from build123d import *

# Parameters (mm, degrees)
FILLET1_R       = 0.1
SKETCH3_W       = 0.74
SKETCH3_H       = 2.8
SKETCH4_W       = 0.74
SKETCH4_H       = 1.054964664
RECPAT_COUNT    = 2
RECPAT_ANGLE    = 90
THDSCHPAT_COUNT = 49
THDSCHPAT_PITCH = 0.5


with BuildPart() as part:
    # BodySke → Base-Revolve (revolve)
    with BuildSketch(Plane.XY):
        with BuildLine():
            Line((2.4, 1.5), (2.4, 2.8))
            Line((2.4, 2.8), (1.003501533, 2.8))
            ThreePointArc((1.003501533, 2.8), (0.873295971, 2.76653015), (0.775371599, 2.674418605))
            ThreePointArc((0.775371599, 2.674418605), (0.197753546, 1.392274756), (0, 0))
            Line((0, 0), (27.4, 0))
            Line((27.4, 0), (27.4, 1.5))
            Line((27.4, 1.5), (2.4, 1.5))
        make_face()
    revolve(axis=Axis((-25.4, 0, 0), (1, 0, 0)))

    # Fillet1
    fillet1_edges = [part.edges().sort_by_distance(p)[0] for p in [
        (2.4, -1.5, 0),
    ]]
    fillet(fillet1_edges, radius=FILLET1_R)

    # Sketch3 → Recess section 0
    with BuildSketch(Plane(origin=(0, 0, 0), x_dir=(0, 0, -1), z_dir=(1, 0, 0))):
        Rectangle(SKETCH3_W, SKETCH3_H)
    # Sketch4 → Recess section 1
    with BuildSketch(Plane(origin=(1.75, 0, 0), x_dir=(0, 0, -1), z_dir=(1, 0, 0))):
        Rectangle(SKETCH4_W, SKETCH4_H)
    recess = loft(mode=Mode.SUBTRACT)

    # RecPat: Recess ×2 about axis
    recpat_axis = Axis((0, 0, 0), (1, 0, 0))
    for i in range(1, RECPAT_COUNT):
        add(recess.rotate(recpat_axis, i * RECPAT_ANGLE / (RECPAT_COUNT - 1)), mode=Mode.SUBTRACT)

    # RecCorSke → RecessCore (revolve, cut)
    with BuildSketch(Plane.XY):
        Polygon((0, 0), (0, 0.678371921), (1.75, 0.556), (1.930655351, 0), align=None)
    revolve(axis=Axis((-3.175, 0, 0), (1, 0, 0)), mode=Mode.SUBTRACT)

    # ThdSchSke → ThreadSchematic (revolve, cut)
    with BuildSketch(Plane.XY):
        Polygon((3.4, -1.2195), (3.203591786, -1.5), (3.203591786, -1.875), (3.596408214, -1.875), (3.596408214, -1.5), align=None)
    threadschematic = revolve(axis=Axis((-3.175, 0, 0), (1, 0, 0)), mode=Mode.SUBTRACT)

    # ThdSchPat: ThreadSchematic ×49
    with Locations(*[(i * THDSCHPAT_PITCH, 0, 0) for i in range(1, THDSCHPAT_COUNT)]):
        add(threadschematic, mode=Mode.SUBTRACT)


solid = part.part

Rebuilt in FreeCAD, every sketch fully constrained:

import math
import FreeCAD as App
import Part
import Sketcher
Q = App.Units.Quantity


def edges_at(feature, points):
    """Names of the edges that pass closest to the given points."""
    edges = feature.Shape.Edges
    near = lambda p: min(range(len(edges)), key=lambda i: edges[i].distToShape(Part.Vertex(*p))[0])
    return sorted({f"Edge{near(p) + 1}" for p in points})


def add_polygon(sketch, points):
    """Adds a closed chain of lines whose ends are joined by coincident constraints."""
    first, n = sketch.GeometryCount, len(points)
    for a, b in zip(points, points[1:] + points[:1]):
        sketch.addGeometry(Part.LineSegment(App.Vector(*a, 0), App.Vector(*b, 0)), False)
    for i in range(n):
        sketch.addConstraint(Sketcher.Constraint("Coincident", first + i, 2, first + (i + 1) % n, 1))

doc = App.newDocument("Part")
body = doc.addObject("PartDesign::Body", "Body")

# Sketch on XY plane
sketch1 = doc.addObject("Sketcher::SketchObject", "Sketch")
body.addObject(sketch1)
sketch1.AttachmentSupport = (doc.XY_Plane, [""])
sketch1.MapMode = "FlatFace"
sketch1.addGeometry([
    Part.LineSegment(App.Vector(2.4, 1.5, 0), App.Vector(2.4, 2.8, 0)),  # 0
    Part.LineSegment(App.Vector(2.4, 2.8, 0), App.Vector(1, 2.8, 0)),  # 1
    Part.ArcOfCircle(Part.Circle(App.Vector(1, 2.53, 0), App.Vector(0, 0, 1), 0.27), math.radians(90), math.radians(148)),  # 2
    Part.ArcOfCircle(Part.Circle(App.Vector(5, 0, 0), App.Vector(0, 0, 1), 5), math.radians(148), math.radians(180)),  # 3
    Part.LineSegment(App.Vector(0, 0, 0), App.Vector(27.4, 0, 0)),  # 4
    Part.LineSegment(App.Vector(27.4, 0, 0), App.Vector(27.4, 1.5, 0)),  # 5
    Part.LineSegment(App.Vector(27.4, 1.5, 0), App.Vector(2.4, 1.5, 0)),  # 6
], False)
sketch1.addConstraint([
    Sketcher.Constraint("Coincident", 0, 2, 1, 1),
    Sketcher.Constraint("Tangent", 1, 2, 2, 1),
    Sketcher.Constraint("Tangent", 2, 2, 3, 1),
    Sketcher.Constraint("Coincident", 3, 2, 4, 1),
    Sketcher.Constraint("Coincident", 4, 2, 5, 1),
    Sketcher.Constraint("Coincident", 5, 2, 6, 1),
    Sketcher.Constraint("Coincident", 6, 2, 0, 1),
    Sketcher.Constraint("Vertical", 0),
    Sketcher.Constraint("Horizontal", 1),
    Sketcher.Constraint("Horizontal", 4),
    Sketcher.Constraint("Vertical", 5),
    Sketcher.Constraint("Horizontal", 6),
    Sketcher.Constraint("Coincident", 3, 2, -1, 1),
    Sketcher.Constraint("PointOnObject", 3, 3, -1),
    Sketcher.Constraint("Radius", 3, Q("5 mm")),
    Sketcher.Constraint("DistanceX", 6, 2, 6, 1, Q("25 mm")),
    Sketcher.Constraint("Radius", 2, Q("0.27 mm")),
    Sketcher.Constraint("DistanceX", 4, 1, 4, 2, Q("27.4 mm")),
    Sketcher.Constraint("DistanceY", 0, 1, 0, 2, Q("1.3 mm")),
    Sketcher.Constraint("DistanceY", 5, 1, 5, 2, Q("1.5 mm")),
])
revolution = doc.addObject("PartDesign::Revolution", "Revolution")
body.addObject(revolution)
revolution.Profile = sketch1
revolution.ReferenceAxis = (sketch1, ["H_Axis"])
revolution.Angle = 360
doc.recompute()

fillet = doc.addObject("PartDesign::Fillet", "Fillet")
body.addObject(fillet)
fillet.Base = (revolution, edges_at(revolution, [(2.4, -1.5, 0)]))
fillet.Radius = 0.1

# Sketch on YZ plane
sketch2 = doc.addObject("Sketcher::SketchObject", "Sketch001")
body.addObject(sketch2)
sketch2.AttachmentSupport = (doc.YZ_Plane, [""])
sketch2.MapMode = "FlatFace"
add_polygon(sketch2, [(1.4, 0.4), (-1.4, 0.4), (-1.4, -0.4), (1.4, -0.4)])  # lines 0-3
sketch2.addConstraint([
    Sketcher.Constraint("Horizontal", 0),
    Sketcher.Constraint("Vertical", 1),
    Sketcher.Constraint("Horizontal", 2),
    Sketcher.Constraint("Vertical", 3),
    Sketcher.Constraint("Symmetric", 0, 2, 2, 2, -1, 1),
    Sketcher.Constraint("DistanceX", 0, 2, 0, 1, Q("2.8 mm")),
    Sketcher.Constraint("DistanceY", 1, 2, 1, 1, Q("0.74 mm")),
])

# Sketch on YZ plane
sketch3 = doc.addObject("Sketcher::SketchObject", "Sketch002")
body.addObject(sketch3)
sketch3.AttachmentSupport = (doc.YZ_Plane, [""])
sketch3.MapMode = "FlatFace"
sketch3.AttachmentOffset = App.Placement(App.Vector(0, 0, 1.75), App.Rotation())
add_polygon(sketch3, [(0.5, 0.4), (-0.5, 0.4), (-0.5, -0.4), (0.5, -0.4)])  # lines 0-3
sketch3.addConstraint([
    Sketcher.Constraint("Horizontal", 0),
    Sketcher.Constraint("Vertical", 1),
    Sketcher.Constraint("Horizontal", 2),
    Sketcher.Constraint("Vertical", 3),
    Sketcher.Constraint("Symmetric", 0, 2, 2, 2, -1, 1),
    Sketcher.Constraint("DistanceY", 1, 2, 1, 1, Q("0.74 mm")),
    Sketcher.Constraint("DistanceX", 0, 2, 0, 1, Q("1.054965 mm")),
])

subtractiveloft = doc.addObject("PartDesign::SubtractiveLoft", "SubtractiveLoft")
body.addObject(subtractiveloft)
subtractiveloft.Profile = sketch2
subtractiveloft.Sections = [sketch3]
doc.recompute()

polarpattern = doc.addObject("PartDesign::PolarPattern", "PolarPattern")
body.addObject(polarpattern)
polarpattern.Originals = [subtractiveloft]
polarpattern.Axis = (doc.X_Axis, [""])
polarpattern.Angle = 90
polarpattern.Occurrences = 2
body.Tip = polarpattern

# Sketch on XY plane
sketch4 = doc.addObject("Sketcher::SketchObject", "Sketch003")
body.addObject(sketch4)
sketch4.AttachmentSupport = (doc.XY_Plane, [""])
sketch4.MapMode = "FlatFace"
add_polygon(sketch4, [(0, 0.7), (0, 0), (1.9, 0), (1.8, 0.6)])  # lines 0-3
sketch4.addConstraint([
    Sketcher.Constraint("Vertical", 0),
    Sketcher.Constraint("Horizontal", 1),
    Sketcher.Constraint("Coincident", 0, 2, -1, 1),
    Sketcher.Constraint("Angle", 2, Q("108 deg")),
    Sketcher.Constraint("Angle", 3, Q("176 deg")),
    Sketcher.Constraint("DistanceX", -1, 1, 2, 2, Q("1.75 mm")),
    Sketcher.Constraint("DistanceY", -1, 1, 2, 2, Q("0.556 mm")),
])
groove = doc.addObject("PartDesign::Groove", "Groove")
body.addObject(groove)
groove.Profile = sketch4
groove.ReferenceAxis = (sketch4, ["H_Axis"])
groove.Angle = 360

# Sketch on XY plane
sketch5 = doc.addObject("Sketcher::SketchObject", "Sketch004")
body.addObject(sketch5)
sketch5.AttachmentSupport = (doc.XY_Plane, [""])
sketch5.MapMode = "FlatFace"
add_polygon(sketch5, [(3.4, -1.22), (3.2, -1.5), (3.2, -1.88), (3.6, -1.88), (3.6, -1.5)])  # lines 0-4
sketch5.addConstraint([
    Sketcher.Constraint("Vertical", 1),
    Sketcher.Constraint("Horizontal", 2),
    Sketcher.Constraint("Vertical", 3),
    Sketcher.Constraint("Horizontal", 0, 2, 3, 2),
    Sketcher.Constraint("Equal", 0, 4),
    Sketcher.Constraint("Angle", 0, Q("-125 deg")),
    Sketcher.Constraint("DistanceY", 0, 2, -1, 1, Q("1.5 mm")),
    Sketcher.Constraint("DistanceX", -1, 1, 4, 2, Q("3.4 mm")),
    Sketcher.Constraint("DistanceY", 1, 2, 1, 1, Q("0.375 mm")),
    Sketcher.Constraint("DistanceY", 4, 2, -1, 1, Q("1.2195 mm")),
])
groove2 = doc.addObject("PartDesign::Groove", "Groove001")
body.addObject(groove2)
groove2.Profile = sketch5
groove2.ReferenceAxis = (sketch5, ["H_Axis"])
groove2.Angle = 360
doc.recompute()

linearpattern = doc.addObject("PartDesign::LinearPattern", "LinearPattern")
body.addObject(linearpattern)
linearpattern.Originals = [groove2]
linearpattern.Direction = (doc.X_Axis, [""])
linearpattern.Mode = "offset"
linearpattern.Offset = 0.5
linearpattern.Occurrences = 49
body.Tip = linearpattern

doc.recompute()
